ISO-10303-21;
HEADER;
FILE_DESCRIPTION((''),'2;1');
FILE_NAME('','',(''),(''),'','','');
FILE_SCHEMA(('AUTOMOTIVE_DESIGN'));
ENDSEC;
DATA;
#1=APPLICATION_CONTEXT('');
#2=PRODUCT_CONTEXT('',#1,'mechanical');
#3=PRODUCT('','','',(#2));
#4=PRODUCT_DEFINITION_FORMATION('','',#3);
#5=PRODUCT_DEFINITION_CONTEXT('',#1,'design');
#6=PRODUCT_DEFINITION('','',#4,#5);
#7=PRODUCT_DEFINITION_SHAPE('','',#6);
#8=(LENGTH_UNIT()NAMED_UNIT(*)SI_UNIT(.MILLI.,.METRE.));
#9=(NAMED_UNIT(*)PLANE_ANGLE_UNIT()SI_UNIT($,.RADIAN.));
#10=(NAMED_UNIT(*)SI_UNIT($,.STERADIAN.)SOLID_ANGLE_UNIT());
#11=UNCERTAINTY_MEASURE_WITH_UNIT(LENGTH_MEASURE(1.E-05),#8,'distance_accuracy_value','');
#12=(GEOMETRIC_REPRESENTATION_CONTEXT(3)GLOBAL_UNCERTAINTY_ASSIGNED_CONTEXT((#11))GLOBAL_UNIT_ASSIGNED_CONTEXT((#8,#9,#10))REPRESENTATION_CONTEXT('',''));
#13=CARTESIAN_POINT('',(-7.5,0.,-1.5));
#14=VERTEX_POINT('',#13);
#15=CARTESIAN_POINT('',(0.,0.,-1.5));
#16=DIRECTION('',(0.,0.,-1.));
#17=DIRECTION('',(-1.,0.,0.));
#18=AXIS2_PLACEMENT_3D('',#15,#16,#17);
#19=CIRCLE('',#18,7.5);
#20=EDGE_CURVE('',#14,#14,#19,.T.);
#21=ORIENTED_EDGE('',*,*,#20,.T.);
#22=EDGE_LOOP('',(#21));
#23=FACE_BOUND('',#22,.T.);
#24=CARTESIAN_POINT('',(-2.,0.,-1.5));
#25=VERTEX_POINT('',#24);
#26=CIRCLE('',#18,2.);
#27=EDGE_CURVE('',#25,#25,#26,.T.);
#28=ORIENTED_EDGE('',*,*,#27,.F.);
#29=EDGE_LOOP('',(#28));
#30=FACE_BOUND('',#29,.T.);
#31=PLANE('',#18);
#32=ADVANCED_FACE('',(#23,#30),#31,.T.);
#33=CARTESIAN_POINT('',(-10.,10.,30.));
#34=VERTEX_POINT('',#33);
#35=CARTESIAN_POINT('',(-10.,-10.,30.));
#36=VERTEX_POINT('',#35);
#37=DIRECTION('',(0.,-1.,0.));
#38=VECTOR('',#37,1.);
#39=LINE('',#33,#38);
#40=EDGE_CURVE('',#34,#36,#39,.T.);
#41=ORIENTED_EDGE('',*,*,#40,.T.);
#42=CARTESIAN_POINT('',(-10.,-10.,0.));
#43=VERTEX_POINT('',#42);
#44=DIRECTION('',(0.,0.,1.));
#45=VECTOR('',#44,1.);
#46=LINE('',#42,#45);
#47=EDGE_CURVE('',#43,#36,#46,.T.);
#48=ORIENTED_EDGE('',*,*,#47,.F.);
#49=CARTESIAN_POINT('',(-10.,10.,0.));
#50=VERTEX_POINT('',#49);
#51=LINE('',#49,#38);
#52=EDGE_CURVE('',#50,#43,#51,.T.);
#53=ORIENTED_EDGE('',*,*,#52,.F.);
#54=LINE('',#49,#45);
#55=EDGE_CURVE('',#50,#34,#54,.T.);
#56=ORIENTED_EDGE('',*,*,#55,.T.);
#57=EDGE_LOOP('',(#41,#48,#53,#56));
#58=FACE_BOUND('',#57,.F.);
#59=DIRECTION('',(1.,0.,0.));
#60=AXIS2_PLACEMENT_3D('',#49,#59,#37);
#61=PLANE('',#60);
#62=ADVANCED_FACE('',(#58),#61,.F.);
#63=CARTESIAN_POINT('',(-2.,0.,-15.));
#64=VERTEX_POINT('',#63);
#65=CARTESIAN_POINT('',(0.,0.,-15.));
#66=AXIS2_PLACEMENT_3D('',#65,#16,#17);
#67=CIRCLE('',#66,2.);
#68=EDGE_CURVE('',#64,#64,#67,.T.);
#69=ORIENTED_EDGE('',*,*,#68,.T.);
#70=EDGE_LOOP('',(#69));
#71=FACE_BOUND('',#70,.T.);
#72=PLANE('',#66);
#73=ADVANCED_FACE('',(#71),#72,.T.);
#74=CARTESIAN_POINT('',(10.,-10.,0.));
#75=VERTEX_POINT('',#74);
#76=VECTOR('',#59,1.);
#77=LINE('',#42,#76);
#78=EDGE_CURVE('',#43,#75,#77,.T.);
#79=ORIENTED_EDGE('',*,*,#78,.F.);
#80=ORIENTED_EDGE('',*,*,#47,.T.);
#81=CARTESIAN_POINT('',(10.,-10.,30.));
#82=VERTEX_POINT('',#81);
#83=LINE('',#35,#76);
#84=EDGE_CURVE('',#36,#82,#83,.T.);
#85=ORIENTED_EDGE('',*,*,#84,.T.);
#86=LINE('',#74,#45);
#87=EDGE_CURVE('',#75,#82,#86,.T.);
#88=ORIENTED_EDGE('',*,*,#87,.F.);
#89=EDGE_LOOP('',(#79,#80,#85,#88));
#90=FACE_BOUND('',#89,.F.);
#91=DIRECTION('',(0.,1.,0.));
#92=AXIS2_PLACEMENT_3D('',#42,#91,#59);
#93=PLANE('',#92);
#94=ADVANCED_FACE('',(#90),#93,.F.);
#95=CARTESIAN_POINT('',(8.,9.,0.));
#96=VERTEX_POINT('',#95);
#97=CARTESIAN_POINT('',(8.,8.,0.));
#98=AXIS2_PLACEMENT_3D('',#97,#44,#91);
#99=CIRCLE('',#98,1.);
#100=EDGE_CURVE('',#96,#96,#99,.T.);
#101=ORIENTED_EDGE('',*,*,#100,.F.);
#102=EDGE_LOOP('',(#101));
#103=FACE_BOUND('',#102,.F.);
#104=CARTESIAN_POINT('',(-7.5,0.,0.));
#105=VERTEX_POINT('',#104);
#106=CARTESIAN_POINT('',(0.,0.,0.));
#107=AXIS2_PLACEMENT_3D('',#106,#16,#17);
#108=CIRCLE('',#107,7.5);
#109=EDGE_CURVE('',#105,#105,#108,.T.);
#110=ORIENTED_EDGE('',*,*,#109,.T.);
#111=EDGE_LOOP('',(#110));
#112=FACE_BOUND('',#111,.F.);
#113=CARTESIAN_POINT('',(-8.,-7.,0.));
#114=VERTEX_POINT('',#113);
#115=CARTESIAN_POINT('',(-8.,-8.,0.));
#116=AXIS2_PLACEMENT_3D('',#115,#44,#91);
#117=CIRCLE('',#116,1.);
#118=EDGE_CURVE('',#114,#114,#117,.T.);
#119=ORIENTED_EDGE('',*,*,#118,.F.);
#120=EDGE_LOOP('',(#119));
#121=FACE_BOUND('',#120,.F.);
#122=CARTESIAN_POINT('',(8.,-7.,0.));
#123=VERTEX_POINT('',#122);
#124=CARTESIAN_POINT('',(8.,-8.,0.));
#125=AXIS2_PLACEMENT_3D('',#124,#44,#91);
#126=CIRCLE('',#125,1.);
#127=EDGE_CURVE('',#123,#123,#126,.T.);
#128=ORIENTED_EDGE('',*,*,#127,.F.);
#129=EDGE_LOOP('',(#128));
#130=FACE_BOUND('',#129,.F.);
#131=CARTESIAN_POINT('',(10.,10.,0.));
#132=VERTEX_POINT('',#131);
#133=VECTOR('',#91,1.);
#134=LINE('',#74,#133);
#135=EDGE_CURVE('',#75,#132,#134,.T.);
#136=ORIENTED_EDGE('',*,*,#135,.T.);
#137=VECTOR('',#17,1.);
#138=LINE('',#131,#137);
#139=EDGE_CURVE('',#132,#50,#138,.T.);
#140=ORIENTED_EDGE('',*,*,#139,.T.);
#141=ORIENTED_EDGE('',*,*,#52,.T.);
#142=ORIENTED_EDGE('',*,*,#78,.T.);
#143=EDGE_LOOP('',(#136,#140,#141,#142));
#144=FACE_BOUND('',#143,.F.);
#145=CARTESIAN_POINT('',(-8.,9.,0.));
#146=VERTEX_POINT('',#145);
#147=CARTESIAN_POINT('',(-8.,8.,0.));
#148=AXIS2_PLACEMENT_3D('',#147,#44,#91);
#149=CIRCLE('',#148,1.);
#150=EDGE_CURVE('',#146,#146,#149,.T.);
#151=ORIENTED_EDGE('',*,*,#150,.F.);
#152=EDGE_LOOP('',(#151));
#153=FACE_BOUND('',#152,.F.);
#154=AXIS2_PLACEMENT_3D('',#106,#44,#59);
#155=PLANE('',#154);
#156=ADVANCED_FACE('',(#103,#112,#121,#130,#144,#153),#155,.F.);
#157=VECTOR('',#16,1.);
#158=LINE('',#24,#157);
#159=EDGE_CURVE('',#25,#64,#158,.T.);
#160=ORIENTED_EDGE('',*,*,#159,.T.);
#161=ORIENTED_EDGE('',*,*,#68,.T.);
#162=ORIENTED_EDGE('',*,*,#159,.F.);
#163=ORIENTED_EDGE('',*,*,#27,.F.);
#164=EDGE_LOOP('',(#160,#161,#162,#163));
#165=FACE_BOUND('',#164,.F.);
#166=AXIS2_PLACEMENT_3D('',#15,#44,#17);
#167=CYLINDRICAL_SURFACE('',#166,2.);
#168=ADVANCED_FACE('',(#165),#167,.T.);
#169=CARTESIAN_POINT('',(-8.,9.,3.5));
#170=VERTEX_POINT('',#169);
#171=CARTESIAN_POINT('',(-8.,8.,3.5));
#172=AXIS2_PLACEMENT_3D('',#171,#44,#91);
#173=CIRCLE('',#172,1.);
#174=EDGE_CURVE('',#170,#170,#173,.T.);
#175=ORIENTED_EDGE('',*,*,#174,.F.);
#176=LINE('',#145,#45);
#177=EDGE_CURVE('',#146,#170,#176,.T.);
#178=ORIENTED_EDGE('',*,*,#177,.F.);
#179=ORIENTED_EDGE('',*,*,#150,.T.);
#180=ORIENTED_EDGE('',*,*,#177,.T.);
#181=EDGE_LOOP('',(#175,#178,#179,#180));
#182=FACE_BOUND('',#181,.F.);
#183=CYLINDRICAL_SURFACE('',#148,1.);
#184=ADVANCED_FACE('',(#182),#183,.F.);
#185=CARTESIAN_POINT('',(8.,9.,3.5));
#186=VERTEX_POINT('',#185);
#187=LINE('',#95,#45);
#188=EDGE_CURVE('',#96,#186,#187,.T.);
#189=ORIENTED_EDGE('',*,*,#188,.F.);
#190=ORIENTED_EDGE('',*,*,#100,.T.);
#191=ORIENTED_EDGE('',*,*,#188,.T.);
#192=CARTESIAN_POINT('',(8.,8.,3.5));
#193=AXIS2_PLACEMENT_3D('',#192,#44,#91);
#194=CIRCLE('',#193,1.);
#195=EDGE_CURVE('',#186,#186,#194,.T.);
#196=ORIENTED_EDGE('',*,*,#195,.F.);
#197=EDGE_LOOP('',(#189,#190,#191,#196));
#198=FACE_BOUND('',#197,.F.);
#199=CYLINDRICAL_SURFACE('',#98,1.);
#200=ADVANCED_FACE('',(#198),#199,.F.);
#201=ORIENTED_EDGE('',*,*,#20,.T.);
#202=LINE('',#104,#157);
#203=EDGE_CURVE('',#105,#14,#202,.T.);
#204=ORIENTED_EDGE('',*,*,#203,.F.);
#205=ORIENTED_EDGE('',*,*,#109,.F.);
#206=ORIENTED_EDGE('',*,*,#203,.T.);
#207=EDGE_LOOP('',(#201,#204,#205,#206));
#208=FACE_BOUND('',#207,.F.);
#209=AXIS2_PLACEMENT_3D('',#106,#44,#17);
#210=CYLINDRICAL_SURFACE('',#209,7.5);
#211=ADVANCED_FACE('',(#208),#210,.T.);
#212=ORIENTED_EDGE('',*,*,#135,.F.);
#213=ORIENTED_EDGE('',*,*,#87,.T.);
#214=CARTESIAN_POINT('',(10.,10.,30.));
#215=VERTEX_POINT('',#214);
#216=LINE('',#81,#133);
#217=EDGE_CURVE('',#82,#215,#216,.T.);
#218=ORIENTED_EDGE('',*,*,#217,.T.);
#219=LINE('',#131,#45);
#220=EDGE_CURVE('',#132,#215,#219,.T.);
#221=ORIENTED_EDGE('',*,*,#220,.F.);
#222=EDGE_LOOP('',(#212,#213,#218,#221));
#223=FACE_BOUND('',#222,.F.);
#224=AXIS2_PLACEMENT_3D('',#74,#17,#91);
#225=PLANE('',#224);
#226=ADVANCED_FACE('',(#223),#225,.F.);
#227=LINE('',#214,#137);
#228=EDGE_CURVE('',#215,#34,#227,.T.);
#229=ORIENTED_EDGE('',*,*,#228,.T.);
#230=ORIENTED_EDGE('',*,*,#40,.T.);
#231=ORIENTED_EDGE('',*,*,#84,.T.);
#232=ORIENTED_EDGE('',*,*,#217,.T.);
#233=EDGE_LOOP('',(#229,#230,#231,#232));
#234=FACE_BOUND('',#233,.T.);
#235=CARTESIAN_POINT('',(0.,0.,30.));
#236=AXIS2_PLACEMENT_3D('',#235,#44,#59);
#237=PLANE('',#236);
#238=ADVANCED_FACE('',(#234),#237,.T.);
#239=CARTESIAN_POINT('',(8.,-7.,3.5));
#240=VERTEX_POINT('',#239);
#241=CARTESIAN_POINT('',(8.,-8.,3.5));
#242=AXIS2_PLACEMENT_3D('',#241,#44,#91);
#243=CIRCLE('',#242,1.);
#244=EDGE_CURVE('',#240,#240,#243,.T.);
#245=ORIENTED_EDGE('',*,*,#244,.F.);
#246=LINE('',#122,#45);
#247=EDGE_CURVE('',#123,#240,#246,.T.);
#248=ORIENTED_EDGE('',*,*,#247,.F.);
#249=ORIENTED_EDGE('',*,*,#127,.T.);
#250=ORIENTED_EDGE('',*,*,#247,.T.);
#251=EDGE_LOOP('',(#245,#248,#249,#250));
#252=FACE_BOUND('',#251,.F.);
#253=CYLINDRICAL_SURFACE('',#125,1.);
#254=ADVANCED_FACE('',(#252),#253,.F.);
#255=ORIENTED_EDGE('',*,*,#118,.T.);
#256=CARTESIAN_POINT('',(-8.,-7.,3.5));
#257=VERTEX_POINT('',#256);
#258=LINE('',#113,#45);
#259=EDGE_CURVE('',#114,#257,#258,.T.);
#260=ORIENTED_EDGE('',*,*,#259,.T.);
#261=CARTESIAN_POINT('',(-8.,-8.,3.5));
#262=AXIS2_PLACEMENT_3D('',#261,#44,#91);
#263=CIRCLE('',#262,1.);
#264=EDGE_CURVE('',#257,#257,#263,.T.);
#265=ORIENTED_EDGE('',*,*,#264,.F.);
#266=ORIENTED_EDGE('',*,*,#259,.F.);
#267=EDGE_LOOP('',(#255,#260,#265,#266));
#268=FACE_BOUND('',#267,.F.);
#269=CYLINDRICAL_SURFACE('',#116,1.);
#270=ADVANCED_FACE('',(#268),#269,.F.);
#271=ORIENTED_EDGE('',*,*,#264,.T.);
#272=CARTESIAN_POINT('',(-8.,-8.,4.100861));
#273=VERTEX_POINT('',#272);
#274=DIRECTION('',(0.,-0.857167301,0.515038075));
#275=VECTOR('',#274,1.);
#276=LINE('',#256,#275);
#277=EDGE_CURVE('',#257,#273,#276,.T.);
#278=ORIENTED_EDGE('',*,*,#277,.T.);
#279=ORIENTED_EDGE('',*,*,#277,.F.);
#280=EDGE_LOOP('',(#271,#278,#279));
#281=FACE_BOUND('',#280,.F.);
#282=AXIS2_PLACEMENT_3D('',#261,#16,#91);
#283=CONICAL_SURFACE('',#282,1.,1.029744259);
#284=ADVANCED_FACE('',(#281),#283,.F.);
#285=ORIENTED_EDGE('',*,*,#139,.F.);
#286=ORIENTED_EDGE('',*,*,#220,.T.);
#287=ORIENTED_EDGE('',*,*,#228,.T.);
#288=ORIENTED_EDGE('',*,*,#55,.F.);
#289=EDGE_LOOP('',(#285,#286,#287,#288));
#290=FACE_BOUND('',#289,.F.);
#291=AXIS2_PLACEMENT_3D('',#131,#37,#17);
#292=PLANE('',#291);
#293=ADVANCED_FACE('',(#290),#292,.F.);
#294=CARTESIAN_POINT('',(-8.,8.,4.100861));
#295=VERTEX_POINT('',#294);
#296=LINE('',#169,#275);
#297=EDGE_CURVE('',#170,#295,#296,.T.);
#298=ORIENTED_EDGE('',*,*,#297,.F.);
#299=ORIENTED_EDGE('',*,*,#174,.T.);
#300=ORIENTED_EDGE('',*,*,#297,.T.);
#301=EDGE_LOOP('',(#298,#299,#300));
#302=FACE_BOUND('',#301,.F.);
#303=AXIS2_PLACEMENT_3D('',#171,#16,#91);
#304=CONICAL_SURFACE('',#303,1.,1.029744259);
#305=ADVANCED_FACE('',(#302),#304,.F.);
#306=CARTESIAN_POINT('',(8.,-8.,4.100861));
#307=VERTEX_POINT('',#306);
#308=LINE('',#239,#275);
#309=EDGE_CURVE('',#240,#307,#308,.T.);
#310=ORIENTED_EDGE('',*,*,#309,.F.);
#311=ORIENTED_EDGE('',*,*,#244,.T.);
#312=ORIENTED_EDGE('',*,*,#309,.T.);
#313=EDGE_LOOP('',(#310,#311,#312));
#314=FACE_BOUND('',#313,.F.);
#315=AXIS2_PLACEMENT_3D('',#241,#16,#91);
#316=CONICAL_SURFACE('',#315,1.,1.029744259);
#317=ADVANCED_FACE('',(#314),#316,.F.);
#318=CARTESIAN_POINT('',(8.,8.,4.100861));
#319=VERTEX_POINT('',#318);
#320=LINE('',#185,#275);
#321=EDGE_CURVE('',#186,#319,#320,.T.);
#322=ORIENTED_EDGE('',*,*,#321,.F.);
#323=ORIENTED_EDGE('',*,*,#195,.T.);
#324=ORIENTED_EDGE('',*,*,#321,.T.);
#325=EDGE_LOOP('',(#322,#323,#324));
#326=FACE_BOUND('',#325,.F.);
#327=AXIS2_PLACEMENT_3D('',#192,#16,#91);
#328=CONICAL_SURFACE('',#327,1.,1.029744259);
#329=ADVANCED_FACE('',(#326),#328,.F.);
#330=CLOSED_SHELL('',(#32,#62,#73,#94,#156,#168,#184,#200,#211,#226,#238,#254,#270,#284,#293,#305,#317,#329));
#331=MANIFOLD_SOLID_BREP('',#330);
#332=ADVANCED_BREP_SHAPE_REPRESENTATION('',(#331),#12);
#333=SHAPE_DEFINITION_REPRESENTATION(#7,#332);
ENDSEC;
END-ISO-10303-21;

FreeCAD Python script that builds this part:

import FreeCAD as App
import Part
import Sketcher
from FreeCAD import Vector


def add_polygon(sketch, points):
    """Adds a closed chain of lines whose ends are joined by coincident constraints."""
    first, n = sketch.GeometryCount, len(points)
    for a, b in zip(points, points[1:] + points[:1]):
        sketch.addGeometry(Part.LineSegment(App.Vector(*a, 0), App.Vector(*b, 0)), False)
    for i in range(n):
        sketch.addConstraint(Sketcher.Constraint("Coincident", first + i, 2, first + (i + 1) % n, 1))

doc = App.newDocument("Part")
body = doc.addObject("PartDesign::Body", "Body")

sketch1 = body.newObject("Sketcher::SketchObject", "Sketch")
sketch1.AttachmentSupport = (doc.getObject("XY_Plane"), [""])
sketch1.MapMode = "FlatFace"
add_polygon(sketch1, [(-10, 10), (-10, -10), (10, -10), (10, 10)])
sketch1.addConstraint(Sketcher.Constraint("Vertical", 0))
sketch1.addConstraint(Sketcher.Constraint("Horizontal", 1))
sketch1.addConstraint(Sketcher.Constraint("Vertical", 2))
sketch1.addConstraint(Sketcher.Constraint("Horizontal", 3))
sketch1.addConstraint(Sketcher.Constraint("Symmetric", 0, 2, 2, 2, -1, 1))
sketch1.addConstraint(Sketcher.Constraint("Equal", 3, 0))
sketch1.addConstraint(Sketcher.Constraint("DistanceX", 1, 1, 1, 2, 20.0))
pad1 = body.newObject("PartDesign::Pad", "Pad")
pad1.Profile = sketch1
pad1.Length = 30

sketch2 = body.newObject("Sketcher::SketchObject", "Sketch001")
sketch2.AttachmentSupport = (doc.getObject("XY_Plane"), [""])
sketch2.MapMode = "FlatFace"
sketch2.addGeometry(Part.Circle(Vector(8, 8, 0), Vector(0, 0, 1), 1), False)
sketch2.addGeometry(Part.Circle(Vector(-8, 8, 0), Vector(0, 0, 1), 1), False)
sketch2.addGeometry(Part.Circle(Vector(-8, -8, 0), Vector(0, 0, 1), 1), False)
sketch2.addGeometry(Part.Circle(Vector(8, -8, 0), Vector(0, 0, 1), 1), False)
sketch2.addConstraint(Sketcher.Constraint("Equal", 0, 1))
sketch2.addConstraint(Sketcher.Constraint("Equal", 1, 2))
sketch2.addConstraint(Sketcher.Constraint("Equal", 2, 3))
sketch2.addConstraint(Sketcher.Constraint("Symmetric", 0, 3, 2, 3, -1, 1))
sketch2.addConstraint(Sketcher.Constraint("Symmetric", 1, 3, 3, 3, -1, 1))
sketch2.addConstraint(Sketcher.Constraint("Symmetric", 0, 3, 1, 3, -2))
sketch2.addConstraint(Sketcher.Constraint("Diameter", 0, 2.0))
sketch2.addConstraint(Sketcher.Constraint("DistanceX", -1, 1, 0, 3, 8.0))
sketch2.addConstraint(Sketcher.Constraint("DistanceY", -1, 1, 0, 3, 8.0))
doc.recompute()
hole = body.newObject("PartDesign::Hole", "Hole")
hole.Profile = sketch2
hole.ThreadType = "None"
hole.Diameter = 2
hole.DepthType = "Dimension"
hole.Depth = 3.5
hole.DrillPoint = "Angled"
hole.DrillPointAngle = 118
hole.Reversed = True

sketch3 = body.newObject("Sketcher::SketchObject", "Sketch002")
sketch3.AttachmentSupport = (doc.getObject("XY_Plane"), [""])
sketch3.MapMode = "FlatFace"
sketch3.addGeometry(Part.Circle(Vector(0, 0, 0), Vector(0, 0, 1), 8), False)
sketch3.addConstraint(Sketcher.Constraint("Coincident", 0, 3, -1, 1))
sketch3.addConstraint(Sketcher.Constraint("Diameter", 0, 15.0))
pad2 = body.newObject("PartDesign::Pad", "Pad001")
pad2.Profile = sketch3
pad2.Length = 1.5
pad2.Reversed = True

sketch4 = body.newObject("Sketcher::SketchObject", "Sketch003")
sketch4.AttachmentSupport = (doc.getObject("XY_Plane"), [""])
sketch4.MapMode = "FlatFace"
sketch4.AttachmentOffset = App.Placement(Vector(0, 0, -1.5), App.Rotation())
sketch4.addGeometry(Part.Circle(Vector(0, 0, 0), Vector(0, 0, 1), 2), False)
sketch4.addConstraint(Sketcher.Constraint("Coincident", 0, 3, -1, 1))
sketch4.addConstraint(Sketcher.Constraint("Diameter", 0, 4.0))
pad3 = body.newObject("PartDesign::Pad", "Pad002")
pad3.Profile = sketch4
pad3.Length = 13.5
pad3.Reversed = True

doc.recompute()
